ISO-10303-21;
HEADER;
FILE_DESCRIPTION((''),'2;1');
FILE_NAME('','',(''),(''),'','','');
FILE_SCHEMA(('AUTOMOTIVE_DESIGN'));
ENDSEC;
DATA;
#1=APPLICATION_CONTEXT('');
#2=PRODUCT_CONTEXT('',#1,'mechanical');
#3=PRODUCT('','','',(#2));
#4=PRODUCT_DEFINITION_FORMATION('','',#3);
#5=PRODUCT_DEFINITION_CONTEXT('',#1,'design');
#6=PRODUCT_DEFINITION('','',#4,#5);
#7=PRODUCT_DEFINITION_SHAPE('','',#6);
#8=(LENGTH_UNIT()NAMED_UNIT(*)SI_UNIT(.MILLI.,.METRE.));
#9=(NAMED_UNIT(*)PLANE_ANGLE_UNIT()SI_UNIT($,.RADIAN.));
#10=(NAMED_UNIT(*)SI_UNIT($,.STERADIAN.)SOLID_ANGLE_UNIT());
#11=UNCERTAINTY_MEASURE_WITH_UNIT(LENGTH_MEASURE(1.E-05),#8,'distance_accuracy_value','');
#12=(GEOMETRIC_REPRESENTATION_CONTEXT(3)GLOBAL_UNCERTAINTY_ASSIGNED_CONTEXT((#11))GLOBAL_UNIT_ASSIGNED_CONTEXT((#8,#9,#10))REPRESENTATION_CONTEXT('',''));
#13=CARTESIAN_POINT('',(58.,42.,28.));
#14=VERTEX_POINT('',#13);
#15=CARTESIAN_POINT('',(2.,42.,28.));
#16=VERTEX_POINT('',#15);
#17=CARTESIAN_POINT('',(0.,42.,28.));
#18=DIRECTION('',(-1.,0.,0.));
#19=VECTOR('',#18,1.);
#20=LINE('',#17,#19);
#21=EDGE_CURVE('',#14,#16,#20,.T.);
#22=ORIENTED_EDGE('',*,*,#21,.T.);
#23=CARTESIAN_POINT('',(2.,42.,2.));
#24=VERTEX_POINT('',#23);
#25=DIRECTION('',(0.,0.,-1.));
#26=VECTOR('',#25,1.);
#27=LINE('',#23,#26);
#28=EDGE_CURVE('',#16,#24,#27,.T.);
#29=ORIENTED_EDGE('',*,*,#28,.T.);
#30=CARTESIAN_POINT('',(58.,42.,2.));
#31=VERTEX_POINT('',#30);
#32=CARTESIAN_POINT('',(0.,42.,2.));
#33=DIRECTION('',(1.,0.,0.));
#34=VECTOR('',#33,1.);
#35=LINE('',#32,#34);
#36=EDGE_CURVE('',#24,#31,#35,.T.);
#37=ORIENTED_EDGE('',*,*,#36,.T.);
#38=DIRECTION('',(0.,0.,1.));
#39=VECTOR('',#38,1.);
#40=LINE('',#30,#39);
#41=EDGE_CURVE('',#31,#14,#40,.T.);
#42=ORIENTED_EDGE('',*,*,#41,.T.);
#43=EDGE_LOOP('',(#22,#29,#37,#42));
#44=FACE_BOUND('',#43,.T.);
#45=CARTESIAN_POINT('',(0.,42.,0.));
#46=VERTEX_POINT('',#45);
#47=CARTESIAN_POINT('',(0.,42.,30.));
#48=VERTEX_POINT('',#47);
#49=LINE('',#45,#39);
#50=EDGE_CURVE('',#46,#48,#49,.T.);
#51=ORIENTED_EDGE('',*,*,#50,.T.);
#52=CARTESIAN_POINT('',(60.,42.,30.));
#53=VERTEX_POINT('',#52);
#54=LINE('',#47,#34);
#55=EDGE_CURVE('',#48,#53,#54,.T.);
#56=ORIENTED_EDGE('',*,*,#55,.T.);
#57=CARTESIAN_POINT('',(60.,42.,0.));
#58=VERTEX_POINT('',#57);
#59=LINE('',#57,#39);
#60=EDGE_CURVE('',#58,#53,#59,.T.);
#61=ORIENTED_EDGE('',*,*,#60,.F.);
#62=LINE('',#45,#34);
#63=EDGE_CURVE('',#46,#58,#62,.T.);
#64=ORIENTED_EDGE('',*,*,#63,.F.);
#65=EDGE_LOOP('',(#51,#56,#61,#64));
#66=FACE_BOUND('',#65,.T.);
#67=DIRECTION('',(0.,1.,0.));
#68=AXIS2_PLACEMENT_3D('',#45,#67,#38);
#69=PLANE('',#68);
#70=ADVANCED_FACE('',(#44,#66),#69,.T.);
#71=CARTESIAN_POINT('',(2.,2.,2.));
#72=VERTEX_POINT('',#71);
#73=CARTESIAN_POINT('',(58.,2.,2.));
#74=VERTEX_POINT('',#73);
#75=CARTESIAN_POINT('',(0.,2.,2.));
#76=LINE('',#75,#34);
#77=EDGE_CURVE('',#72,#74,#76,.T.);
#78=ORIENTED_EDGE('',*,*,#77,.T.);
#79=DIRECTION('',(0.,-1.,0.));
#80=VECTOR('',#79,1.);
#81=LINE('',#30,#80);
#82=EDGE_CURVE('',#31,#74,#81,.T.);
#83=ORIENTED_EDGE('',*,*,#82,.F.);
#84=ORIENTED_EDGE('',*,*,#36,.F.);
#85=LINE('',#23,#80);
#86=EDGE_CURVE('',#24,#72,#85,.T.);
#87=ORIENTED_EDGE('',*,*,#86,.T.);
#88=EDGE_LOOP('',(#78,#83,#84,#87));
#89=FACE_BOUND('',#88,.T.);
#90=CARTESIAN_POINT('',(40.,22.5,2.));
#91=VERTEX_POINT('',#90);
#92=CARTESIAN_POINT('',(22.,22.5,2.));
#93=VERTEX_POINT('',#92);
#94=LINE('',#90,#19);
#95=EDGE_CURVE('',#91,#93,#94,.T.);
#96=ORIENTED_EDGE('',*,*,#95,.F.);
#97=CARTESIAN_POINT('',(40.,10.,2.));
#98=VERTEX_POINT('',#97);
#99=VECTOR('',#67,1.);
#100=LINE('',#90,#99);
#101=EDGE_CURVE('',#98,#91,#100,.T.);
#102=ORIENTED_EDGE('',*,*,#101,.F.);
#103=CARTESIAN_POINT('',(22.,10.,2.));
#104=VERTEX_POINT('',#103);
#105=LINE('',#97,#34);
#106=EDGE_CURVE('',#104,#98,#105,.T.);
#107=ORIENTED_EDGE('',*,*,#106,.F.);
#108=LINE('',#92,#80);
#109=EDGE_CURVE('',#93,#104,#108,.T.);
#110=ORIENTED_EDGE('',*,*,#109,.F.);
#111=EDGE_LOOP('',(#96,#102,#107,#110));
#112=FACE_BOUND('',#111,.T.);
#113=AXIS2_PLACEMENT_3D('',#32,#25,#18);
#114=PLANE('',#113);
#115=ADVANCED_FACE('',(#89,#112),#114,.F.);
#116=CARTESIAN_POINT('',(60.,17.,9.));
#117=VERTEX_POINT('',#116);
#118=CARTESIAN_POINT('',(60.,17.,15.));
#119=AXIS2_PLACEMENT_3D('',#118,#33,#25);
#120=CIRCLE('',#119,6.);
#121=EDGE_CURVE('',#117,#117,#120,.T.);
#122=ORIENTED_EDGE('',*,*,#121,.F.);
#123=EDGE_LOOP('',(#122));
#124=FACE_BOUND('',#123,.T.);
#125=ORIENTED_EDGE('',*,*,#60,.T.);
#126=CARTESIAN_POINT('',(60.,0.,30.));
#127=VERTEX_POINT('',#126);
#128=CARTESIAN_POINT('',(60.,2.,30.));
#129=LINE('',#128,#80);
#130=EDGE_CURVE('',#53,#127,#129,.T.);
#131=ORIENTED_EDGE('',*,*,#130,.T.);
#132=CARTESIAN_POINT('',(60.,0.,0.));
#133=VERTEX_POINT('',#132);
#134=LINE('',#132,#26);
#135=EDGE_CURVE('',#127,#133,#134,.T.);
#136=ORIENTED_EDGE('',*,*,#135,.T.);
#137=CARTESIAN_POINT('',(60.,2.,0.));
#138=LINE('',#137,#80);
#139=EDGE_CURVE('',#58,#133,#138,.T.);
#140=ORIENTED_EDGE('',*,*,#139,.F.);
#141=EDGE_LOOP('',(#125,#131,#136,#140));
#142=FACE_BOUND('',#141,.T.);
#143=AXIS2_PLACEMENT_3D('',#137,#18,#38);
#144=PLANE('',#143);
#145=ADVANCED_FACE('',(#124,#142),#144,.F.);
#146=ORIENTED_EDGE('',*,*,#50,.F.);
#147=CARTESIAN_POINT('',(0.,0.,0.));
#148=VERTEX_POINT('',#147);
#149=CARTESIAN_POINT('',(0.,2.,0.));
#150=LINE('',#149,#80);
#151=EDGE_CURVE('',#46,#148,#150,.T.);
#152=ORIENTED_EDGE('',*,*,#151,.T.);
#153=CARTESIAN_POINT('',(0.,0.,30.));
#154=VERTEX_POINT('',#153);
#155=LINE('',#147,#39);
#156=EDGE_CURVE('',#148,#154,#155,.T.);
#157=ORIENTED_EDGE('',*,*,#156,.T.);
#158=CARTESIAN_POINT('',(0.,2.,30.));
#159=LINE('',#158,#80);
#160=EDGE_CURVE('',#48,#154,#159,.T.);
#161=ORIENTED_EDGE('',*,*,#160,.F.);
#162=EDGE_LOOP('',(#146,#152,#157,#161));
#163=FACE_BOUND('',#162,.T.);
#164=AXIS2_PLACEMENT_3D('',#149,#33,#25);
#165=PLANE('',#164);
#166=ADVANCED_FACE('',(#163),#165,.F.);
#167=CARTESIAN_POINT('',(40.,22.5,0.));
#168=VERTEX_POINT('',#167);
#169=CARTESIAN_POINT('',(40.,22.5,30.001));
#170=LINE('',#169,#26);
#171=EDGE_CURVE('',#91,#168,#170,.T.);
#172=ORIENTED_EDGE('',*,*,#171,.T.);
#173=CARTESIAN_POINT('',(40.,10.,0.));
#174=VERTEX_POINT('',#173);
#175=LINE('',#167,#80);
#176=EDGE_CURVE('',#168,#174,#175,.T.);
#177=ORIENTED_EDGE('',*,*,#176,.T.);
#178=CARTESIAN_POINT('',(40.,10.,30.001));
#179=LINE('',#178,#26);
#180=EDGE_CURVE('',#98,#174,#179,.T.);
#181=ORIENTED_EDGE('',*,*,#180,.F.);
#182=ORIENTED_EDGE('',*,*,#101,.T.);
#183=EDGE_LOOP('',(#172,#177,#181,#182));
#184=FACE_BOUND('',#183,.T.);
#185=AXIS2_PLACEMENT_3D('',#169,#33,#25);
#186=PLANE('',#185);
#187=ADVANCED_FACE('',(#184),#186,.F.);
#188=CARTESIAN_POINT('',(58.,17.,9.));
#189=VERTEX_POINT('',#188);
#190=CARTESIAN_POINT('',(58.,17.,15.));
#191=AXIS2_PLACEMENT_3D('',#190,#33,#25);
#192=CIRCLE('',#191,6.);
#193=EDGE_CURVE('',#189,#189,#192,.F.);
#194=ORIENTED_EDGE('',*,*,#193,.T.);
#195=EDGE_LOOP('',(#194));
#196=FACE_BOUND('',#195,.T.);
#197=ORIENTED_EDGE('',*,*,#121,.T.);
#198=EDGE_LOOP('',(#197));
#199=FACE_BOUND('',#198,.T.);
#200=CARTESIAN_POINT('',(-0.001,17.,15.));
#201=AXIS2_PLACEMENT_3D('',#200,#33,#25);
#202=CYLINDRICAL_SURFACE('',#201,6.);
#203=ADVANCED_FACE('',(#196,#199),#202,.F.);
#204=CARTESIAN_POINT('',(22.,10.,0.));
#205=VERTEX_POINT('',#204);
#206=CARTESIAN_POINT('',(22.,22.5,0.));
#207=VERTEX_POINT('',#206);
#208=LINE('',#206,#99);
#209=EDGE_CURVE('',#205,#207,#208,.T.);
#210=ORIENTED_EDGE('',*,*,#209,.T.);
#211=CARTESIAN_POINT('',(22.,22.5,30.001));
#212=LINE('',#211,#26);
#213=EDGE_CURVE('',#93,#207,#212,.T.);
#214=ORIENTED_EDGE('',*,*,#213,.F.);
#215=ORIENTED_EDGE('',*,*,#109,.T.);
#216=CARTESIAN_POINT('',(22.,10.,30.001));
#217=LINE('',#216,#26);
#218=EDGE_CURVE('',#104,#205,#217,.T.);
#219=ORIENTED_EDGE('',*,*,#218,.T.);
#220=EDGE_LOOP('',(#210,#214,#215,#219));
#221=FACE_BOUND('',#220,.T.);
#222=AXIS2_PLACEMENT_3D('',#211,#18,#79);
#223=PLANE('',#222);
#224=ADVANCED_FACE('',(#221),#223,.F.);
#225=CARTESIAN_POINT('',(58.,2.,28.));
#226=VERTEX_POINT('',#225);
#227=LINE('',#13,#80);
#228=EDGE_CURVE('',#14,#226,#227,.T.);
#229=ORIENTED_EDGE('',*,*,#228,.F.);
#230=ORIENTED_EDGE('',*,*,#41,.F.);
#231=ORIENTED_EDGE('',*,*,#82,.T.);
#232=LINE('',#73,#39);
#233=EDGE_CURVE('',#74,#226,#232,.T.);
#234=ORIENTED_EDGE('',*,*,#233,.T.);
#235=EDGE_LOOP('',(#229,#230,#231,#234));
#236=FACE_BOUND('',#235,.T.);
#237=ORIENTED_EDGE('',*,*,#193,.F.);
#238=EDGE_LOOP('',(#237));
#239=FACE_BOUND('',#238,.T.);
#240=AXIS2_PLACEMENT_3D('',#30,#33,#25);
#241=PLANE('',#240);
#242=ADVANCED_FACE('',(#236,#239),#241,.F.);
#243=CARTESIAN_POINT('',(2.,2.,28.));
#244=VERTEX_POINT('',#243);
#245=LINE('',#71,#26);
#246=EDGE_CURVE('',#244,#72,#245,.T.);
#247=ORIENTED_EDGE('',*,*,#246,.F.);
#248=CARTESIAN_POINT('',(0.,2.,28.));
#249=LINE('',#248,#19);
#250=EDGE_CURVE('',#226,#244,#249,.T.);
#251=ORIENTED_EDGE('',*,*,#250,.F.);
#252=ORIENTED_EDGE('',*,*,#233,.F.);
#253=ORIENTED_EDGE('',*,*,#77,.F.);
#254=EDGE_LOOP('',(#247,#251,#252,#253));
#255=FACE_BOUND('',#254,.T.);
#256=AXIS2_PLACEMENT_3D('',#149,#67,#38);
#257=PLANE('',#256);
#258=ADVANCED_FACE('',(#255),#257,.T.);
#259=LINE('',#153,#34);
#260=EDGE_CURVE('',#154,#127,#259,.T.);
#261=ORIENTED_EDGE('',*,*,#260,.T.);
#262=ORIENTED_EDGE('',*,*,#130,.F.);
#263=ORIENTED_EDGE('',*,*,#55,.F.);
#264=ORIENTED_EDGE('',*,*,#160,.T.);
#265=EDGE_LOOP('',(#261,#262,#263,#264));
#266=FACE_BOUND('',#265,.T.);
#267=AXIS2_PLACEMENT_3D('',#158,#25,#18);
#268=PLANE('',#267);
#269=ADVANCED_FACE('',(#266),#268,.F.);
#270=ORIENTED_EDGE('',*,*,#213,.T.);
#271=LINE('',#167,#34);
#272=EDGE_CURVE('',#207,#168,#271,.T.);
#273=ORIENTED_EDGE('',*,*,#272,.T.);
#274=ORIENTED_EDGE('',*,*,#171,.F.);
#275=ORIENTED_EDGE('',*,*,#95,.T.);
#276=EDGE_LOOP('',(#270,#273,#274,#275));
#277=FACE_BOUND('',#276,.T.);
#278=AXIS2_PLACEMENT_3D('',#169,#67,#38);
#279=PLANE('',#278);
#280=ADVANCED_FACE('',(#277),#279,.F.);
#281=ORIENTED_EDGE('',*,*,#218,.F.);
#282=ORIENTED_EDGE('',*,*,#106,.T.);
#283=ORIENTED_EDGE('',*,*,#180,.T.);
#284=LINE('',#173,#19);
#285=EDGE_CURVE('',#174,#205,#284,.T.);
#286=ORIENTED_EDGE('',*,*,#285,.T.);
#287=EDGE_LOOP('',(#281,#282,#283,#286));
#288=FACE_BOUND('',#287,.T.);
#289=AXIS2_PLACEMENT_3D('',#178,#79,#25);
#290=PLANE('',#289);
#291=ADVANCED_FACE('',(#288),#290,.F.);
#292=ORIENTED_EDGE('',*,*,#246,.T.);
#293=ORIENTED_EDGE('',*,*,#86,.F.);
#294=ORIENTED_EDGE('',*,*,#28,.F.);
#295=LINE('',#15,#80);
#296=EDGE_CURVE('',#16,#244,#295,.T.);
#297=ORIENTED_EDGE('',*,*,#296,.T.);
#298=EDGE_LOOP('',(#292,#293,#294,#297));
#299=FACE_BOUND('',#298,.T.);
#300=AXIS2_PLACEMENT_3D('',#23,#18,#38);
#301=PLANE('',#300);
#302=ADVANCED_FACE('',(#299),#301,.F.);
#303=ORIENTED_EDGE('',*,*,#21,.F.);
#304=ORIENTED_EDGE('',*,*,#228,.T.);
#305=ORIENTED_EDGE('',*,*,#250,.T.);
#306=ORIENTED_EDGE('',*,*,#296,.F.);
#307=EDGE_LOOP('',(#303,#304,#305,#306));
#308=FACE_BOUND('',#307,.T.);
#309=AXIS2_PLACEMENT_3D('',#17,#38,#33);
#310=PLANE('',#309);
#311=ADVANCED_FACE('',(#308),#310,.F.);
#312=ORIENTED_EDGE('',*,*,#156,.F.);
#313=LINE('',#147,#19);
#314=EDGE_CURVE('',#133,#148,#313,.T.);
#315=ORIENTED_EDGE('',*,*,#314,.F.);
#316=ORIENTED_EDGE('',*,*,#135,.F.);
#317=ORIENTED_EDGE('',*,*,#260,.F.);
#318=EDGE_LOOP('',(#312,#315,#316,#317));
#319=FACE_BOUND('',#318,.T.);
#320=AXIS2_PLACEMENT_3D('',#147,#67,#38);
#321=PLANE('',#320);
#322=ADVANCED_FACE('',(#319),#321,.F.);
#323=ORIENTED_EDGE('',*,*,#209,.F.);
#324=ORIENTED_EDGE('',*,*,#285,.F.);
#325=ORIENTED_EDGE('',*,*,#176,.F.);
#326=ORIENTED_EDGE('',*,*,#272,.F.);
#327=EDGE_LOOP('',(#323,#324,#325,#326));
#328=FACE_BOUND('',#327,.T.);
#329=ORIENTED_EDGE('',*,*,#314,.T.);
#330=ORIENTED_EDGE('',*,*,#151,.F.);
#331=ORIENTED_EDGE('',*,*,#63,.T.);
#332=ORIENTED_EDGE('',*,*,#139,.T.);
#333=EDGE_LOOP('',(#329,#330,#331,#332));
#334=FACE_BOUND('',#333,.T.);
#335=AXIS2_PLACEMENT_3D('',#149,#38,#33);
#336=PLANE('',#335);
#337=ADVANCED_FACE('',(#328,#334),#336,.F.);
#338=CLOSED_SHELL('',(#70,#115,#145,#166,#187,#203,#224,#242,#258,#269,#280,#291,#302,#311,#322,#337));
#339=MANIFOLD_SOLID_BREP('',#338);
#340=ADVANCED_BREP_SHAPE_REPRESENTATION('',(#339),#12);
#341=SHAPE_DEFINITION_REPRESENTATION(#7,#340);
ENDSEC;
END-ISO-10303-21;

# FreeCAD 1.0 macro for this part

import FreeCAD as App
import Part
import Sketcher
Q = App.Units.Quantity

doc = App.newDocument("Part")
body = doc.addObject("PartDesign::Body", "Body")

# Sketch on XZ plane
sketch1 = doc.addObject("Sketcher::SketchObject", "Sketch")
body.addObject(sketch1)
sketch1.AttachmentSupport = (doc.XZ_Plane, [""])
sketch1.MapMode = "FlatFace"
sketch1.addGeometry([
    Part.LineSegment(App.Vector(0, 0, 0), App.Vector(0, 30, 0)),
    Part.LineSegment(App.Vector(0, 30, 0), App.Vector(60, 30, 0)),
    Part.LineSegment(App.Vector(60, 30, 0), App.Vector(60, 0, 0)),
    Part.LineSegment(App.Vector(60, 0, 0), App.Vector(0, 0, 0)),
], False)
sketch1.addConstraint([
    Sketcher.Constraint("Coincident", 0, 2, 1, 1),
    Sketcher.Constraint("Coincident", 1, 2, 2, 1),
    Sketcher.Constraint("Coincident", 2, 2, 3, 1),
    Sketcher.Constraint("Coincident", 3, 2, 0, 1),
    Sketcher.Constraint("Vertical", 0),
    Sketcher.Constraint("Horizontal", 1),
    Sketcher.Constraint("Vertical", 2),
    Sketcher.Constraint("Horizontal", 3),
    Sketcher.Constraint("Coincident", 3, 2, -1, 1),
    Sketcher.Constraint("DistanceX", 1, 1, 1, 2, Q("60 mm")),
    Sketcher.Constraint("DistanceY", 0, 1, 0, 2, Q("30 mm")),
])
pad1 = doc.addObject("PartDesign::Pad", "Pad")
body.addObject(pad1)
pad1.Profile = sketch1
pad1.Length = 2
pad1.Reversed = True

# Sketch on XZ plane
sketch2 = doc.addObject("Sketcher::SketchObject", "Sketch001")
body.addObject(sketch2)
sketch2.AttachmentSupport = (doc.XZ_Plane, [""])
sketch2.MapMode = "FlatFace"
sketch2.AttachmentOffset = App.Placement(App.Vector(0, 0, -2), App.Rotation())
sketch2.addGeometry([
    Part.LineSegment(App.Vector(0, 0, 0), App.Vector(0, 2, 0)),
    Part.LineSegment(App.Vector(0, 2, 0), App.Vector(60, 2, 0)),
    Part.LineSegment(App.Vector(60, 2, 0), App.Vector(60, 0, 0)),
    Part.LineSegment(App.Vector(60, 0, 0), App.Vector(0, 0, 0)),
], False)
sketch2.addConstraint([
    Sketcher.Constraint("Coincident", 0, 2, 1, 1),
    Sketcher.Constraint("Coincident", 1, 2, 2, 1),
    Sketcher.Constraint("Coincident", 2, 2, 3, 1),
    Sketcher.Constraint("Coincident", 3, 2, 0, 1),
    Sketcher.Constraint("Vertical", 0),
    Sketcher.Constraint("Horizontal", 1),
    Sketcher.Constraint("Vertical", 2),
    Sketcher.Constraint("Horizontal", 3),
    Sketcher.Constraint("Coincident", 3, 2, -1, 1),
    Sketcher.Constraint("DistanceX", 1, 1, 1, 2, Q("60 mm")),
    Sketcher.Constraint("DistanceY", 0, 1, 0, 2, Q("2 mm")),
])
pad2 = doc.addObject("PartDesign::Pad", "Pad001")
body.addObject(pad2)
pad2.Profile = sketch2
pad2.Length = 40
pad2.Reversed = True

# Sketch on XZ plane
sketch3 = doc.addObject("Sketcher::SketchObject", "Sketch002")
body.addObject(sketch3)
sketch3.AttachmentSupport = (doc.XZ_Plane, [""])
sketch3.MapMode = "FlatFace"
sketch3.AttachmentOffset = App.Placement(App.Vector(0, 0, -2), App.Rotation())
sketch3.addGeometry([
    Part.LineSegment(App.Vector(0, 28, 0), App.Vector(0, 30, 0)),
    Part.LineSegment(App.Vector(0, 30, 0), App.Vector(60, 30, 0)),
    Part.LineSegment(App.Vector(60, 30, 0), App.Vector(60, 28, 0)),
    Part.LineSegment(App.Vector(60, 28, 0), App.Vector(0, 28, 0)),
], False)
sketch3.addConstraint([
    Sketcher.Constraint("Coincident", 0, 2, 1, 1),
    Sketcher.Constraint("Coincident", 1, 2, 2, 1),
    Sketcher.Constraint("Coincident", 2, 2, 3, 1),
    Sketcher.Constraint("Coincident", 3, 2, 0, 1),
    Sketcher.Constraint("Vertical", 0),
    Sketcher.Constraint("Horizontal", 1),
    Sketcher.Constraint("Vertical", 2),
    Sketcher.Constraint("Horizontal", 3),
    Sketcher.Constraint("PointOnObject", 0, 2, -2),
    Sketcher.Constraint("DistanceX", 1, 1, 1, 2, Q("60 mm")),
    Sketcher.Constraint("DistanceY", 0, 1, 0, 2, Q("2 mm")),
    Sketcher.Constraint("DistanceY", -1, 1, 0, 2, Q("30 mm")),
])
pad3 = doc.addObject("PartDesign::Pad", "Pad002")
body.addObject(pad3)
pad3.Profile = sketch3
pad3.Length = 40
pad3.Reversed = True

# Sketch on XZ plane
sketch4 = doc.addObject("Sketcher::SketchObject", "Sketch003")
body.addObject(sketch4)
sketch4.AttachmentSupport = (doc.XZ_Plane, [""])
sketch4.MapMode = "FlatFace"
sketch4.AttachmentOffset = App.Placement(App.Vector(0, 0, -2), App.Rotation())
sketch4.addGeometry([
    Part.LineSegment(App.Vector(0, 2, 0), App.Vector(0, 28, 0)),
    Part.LineSegment(App.Vector(0, 28, 0), App.Vector(2, 28, 0)),
    Part.LineSegment(App.Vector(2, 28, 0), App.Vector(2, 2, 0)),
    Part.LineSegment(App.Vector(2, 2, 0), App.Vector(0, 2, 0)),
], False)
sketch4.addConstraint([
    Sketcher.Constraint("Coincident", 0, 2, 1, 1),
    Sketcher.Constraint("Coincident", 1, 2, 2, 1),
    Sketcher.Constraint("Coincident", 2, 2, 3, 1),
    Sketcher.Constraint("Coincident", 3, 2, 0, 1),
    Sketcher.Constraint("Vertical", 0),
    Sketcher.Constraint("Horizontal", 1),
    Sketcher.Constraint("Vertical", 2),
    Sketcher.Constraint("Horizontal", 3),
    Sketcher.Constraint("PointOnObject", 0, 2, -2),
    Sketcher.Constraint("DistanceX", 1, 1, 1, 2, Q("2 mm")),
    Sketcher.Constraint("DistanceY", 0, 1, 0, 2, Q("26 mm")),
    Sketcher.Constraint("DistanceY", -1, 1, 0, 2, Q("28 mm")),
])
pad4 = doc.addObject("PartDesign::Pad", "Pad003")
body.addObject(pad4)
pad4.Profile = sketch4
pad4.Length = 40
pad4.Reversed = True

# Sketch on XZ plane
sketch5 = doc.addObject("Sketcher::SketchObject", "Sketch004")
body.addObject(sketch5)
sketch5.AttachmentSupport = (doc.XZ_Plane, [""])
sketch5.MapMode = "FlatFace"
sketch5.AttachmentOffset = App.Placement(App.Vector(0, 0, -2), App.Rotation())
sketch5.addGeometry([
    Part.LineSegment(App.Vector(58, 2, 0), App.Vector(58, 28, 0)),
    Part.LineSegment(App.Vector(58, 28, 0), App.Vector(60, 28, 0)),
    Part.LineSegment(App.Vector(60, 28, 0), App.Vector(60, 2, 0)),
    Part.LineSegment(App.Vector(60, 2, 0), App.Vector(58, 2, 0)),
], False)
sketch5.addConstraint([
    Sketcher.Constraint("Coincident", 0, 2, 1, 1),
    Sketcher.Constraint("Coincident", 1, 2, 2, 1),
    Sketcher.Constraint("Coincident", 2, 2, 3, 1),
    Sketcher.Constraint("Coincident", 3, 2, 0, 1),
    Sketcher.Constraint("Vertical", 0),
    Sketcher.Constraint("Horizontal", 1),
    Sketcher.Constraint("Vertical", 2),
    Sketcher.Constraint("Horizontal", 3),
    Sketcher.Constraint("DistanceX", 1, 1, 1, 2, Q("2 mm")),
    Sketcher.Constraint("DistanceY", 0, 1, 0, 2, Q("26 mm")),
    Sketcher.Constraint("DistanceX", -1, 1, 0, 2, Q("58 mm")),
    Sketcher.Constraint("DistanceY", -1, 1, 0, 2, Q("28 mm")),
])
pad5 = doc.addObject("PartDesign::Pad", "Pad004")
body.addObject(pad5)
pad5.Profile = sketch5
pad5.Length = 40
pad5.Reversed = True

# Sketch on YZ plane
sketch6 = doc.addObject("Sketcher::SketchObject", "Sketch005")
body.addObject(sketch6)
sketch6.AttachmentSupport = (doc.YZ_Plane, [""])
sketch6.MapMode = "FlatFace"
sketch6.AttachmentOffset = App.Placement(App.Vector(0, 0, 60), App.Rotation())
sketch6.addGeometry(Part.Circle(App.Vector(17, 15, 0), App.Vector(0, 0, 1), 6), False)
sketch6.addConstraint([
    Sketcher.Constraint("Diameter", 0, Q("12 mm")),
    Sketcher.Constraint("DistanceX", -1, 1, 0, 3, Q("17 mm")),
    Sketcher.Constraint("DistanceY", -1, 1, 0, 3, Q("15 mm")),
])
pocket1 = doc.addObject("PartDesign::Pocket", "Pocket")
body.addObject(pocket1)
pocket1.Profile = sketch6
pocket1.Type = "UpToFirst"

# Sketch on XY plane
sketch7 = doc.addObject("Sketcher::SketchObject", "Sketch006")
body.addObject(sketch7)
sketch7.AttachmentSupport = (doc.XY_Plane, [""])
sketch7.MapMode = "FlatFace"
sketch7.addGeometry([
    Part.LineSegment(App.Vector(40, 22, 0), App.Vector(40, 10, 0)),
    Part.LineSegment(App.Vector(40, 10, 0), App.Vector(22, 10, 0)),
    Part.LineSegment(App.Vector(22, 10, 0), App.Vector(22, 22, 0)),
    Part.LineSegment(App.Vector(22, 22, 0), App.Vector(40, 22, 0)),
], False)
sketch7.addConstraint([
    Sketcher.Constraint("Coincident", 0, 2, 1, 1),
    Sketcher.Constraint("Coincident", 1, 2, 2, 1),
    Sketcher.Constraint("Coincident", 2, 2, 3, 1),
    Sketcher.Constraint("Coincident", 3, 2, 0, 1),
    Sketcher.Constraint("Vertical", 0),
    Sketcher.Constraint("Horizontal", 1),
    Sketcher.Constraint("Vertical", 2),
    Sketcher.Constraint("Horizontal", 3),
    Sketcher.Constraint("DistanceX", 1, 2, 1, 1, Q("18 mm")),
    Sketcher.Constraint("DistanceY", 0, 2, 0, 1, Q("12.5 mm")),
    Sketcher.Constraint("DistanceX", -1, 1, 0, 2, Q("40 mm")),
    Sketcher.Constraint("DistanceY", -1, 1, 0, 2, Q("10 mm")),
])
pocket2 = doc.addObject("PartDesign::Pocket", "Pocket001")
body.addObject(pocket2)
pocket2.Profile = sketch7
pocket2.Type = "UpToFirst"
pocket2.Reversed = True

doc.recompute()
